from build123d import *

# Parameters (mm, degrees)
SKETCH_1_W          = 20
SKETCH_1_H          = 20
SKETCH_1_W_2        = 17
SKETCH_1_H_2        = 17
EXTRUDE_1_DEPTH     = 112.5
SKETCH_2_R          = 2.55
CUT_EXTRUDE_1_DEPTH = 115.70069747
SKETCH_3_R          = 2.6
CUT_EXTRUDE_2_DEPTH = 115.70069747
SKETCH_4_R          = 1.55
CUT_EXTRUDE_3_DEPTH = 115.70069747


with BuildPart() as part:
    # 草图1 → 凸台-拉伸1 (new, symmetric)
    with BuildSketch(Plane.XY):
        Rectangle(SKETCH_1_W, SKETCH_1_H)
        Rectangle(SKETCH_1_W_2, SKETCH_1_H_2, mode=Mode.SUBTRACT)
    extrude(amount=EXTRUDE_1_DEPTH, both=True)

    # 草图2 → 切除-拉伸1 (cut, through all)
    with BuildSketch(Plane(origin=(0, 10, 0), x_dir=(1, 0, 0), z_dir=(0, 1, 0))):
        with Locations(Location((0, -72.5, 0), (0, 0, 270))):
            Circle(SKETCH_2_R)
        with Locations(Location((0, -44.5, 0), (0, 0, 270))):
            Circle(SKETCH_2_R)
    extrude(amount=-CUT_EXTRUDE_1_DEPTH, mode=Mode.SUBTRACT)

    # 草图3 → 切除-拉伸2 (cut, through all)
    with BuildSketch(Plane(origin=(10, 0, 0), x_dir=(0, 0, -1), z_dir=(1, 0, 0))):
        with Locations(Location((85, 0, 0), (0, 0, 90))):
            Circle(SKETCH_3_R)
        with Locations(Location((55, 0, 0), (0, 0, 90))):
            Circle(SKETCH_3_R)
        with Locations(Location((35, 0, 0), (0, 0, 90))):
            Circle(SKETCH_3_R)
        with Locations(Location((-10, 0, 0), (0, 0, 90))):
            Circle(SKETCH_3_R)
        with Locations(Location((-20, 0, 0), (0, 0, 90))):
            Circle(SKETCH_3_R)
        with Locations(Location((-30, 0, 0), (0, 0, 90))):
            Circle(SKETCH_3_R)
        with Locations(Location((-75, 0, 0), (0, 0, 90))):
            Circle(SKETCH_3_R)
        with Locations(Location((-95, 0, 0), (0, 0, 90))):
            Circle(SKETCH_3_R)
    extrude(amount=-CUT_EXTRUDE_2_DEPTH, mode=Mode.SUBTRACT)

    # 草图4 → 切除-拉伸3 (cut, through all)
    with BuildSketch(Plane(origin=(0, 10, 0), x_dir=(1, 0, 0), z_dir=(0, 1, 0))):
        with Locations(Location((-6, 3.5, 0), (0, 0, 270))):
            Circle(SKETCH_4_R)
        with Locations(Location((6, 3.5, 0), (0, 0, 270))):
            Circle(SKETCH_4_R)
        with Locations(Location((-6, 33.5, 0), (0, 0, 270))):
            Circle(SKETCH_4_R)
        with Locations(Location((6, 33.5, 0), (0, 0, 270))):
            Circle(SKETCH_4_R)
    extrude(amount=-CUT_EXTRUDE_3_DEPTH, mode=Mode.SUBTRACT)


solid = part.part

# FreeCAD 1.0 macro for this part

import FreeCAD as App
import Part
import Sketcher
Q = App.Units.Quantity

doc = App.newDocument("Part")
body = doc.addObject("PartDesign::Body", "Body")

# Sketch on XY plane
sketch1 = body.newObject("Sketcher::SketchObject", "Sketch")
sketch1.AttachmentSupport = (doc.getObject("XY_Plane"), [""])
sketch1.MapMode = "FlatFace"
sketch1.addGeometry([
    Part.LineSegment(App.Vector(-10, 10, 0), App.Vector(-10, -10, 0)),  # 0
    Part.LineSegment(App.Vector(-10, -10, 0), App.Vector(10, -10, 0)),  # 1
    Part.LineSegment(App.Vector(10, -10, 0), App.Vector(10, 10, 0)),  # 2
    Part.LineSegment(App.Vector(10, 10, 0), App.Vector(-10, 10, 0)),  # 3
    Part.LineSegment(App.Vector(8.5, -8.5, 0), App.Vector(-8.5, -8.5, 0)),  # 4
    Part.LineSegment(App.Vector(-8.5, -8.5, 0), App.Vector(-8.5, 8.5, 0)),  # 5
    Part.LineSegment(App.Vector(-8.5, 8.5, 0), App.Vector(8.5, 8.5, 0)),  # 6
    Part.LineSegment(App.Vector(8.5, 8.5, 0), App.Vector(8.5, -8.5, 0)),  # 7
], False)
sketch1.addConstraint([
    Sketcher.Constraint("Coincident", 0, 2, 1, 1),
    Sketcher.Constraint("Coincident", 1, 2, 2, 1),
    Sketcher.Constraint("Coincident", 2, 2, 3, 1),
    Sketcher.Constraint("Coincident", 3, 2, 0, 1),
    Sketcher.Constraint("Coincident", 4, 2, 5, 1),
    Sketcher.Constraint("Coincident", 5, 2, 6, 1),
    Sketcher.Constraint("Coincident", 6, 2, 7, 1),
    Sketcher.Constraint("Coincident", 7, 2, 4, 1),
    Sketcher.Constraint("Vertical", 0),
    Sketcher.Constraint("Horizontal", 1),
    Sketcher.Constraint("Vertical", 2),
    Sketcher.Constraint("Horizontal", 3),
    Sketcher.Constraint("Horizontal", 4),
    Sketcher.Constraint("Vertical", 5),
    Sketcher.Constraint("Horizontal", 6),
    Sketcher.Constraint("Vertical", 7),
    Sketcher.Constraint("Symmetric", 0, 2, 2, 2, -1, 1),
    Sketcher.Constraint("Symmetric", 4, 2, 6, 2, -1, 1),
    Sketcher.Constraint("Equal", 3, 0),
    Sketcher.Constraint("Equal", 6, 5),
    Sketcher.Constraint("DistanceX", 1, 1, 1, 2, Q("20 mm")),
    Sketcher.Constraint("DistanceX", 4, 2, 4, 1, Q("17 mm")),
])
pad1 = body.newObject("PartDesign::Pad", "Pad")
pad1.Profile = sketch1
pad1.Length = 225
pad1.Midplane = True

# Sketch on XZ plane
sketch2 = body.newObject("Sketcher::SketchObject", "Sketch001")
sketch2.AttachmentSupport = (doc.getObject("XZ_Plane"), [""])
sketch2.MapMode = "FlatFace"
sketch2.AttachmentOffset = App.Placement(App.Vector(0, 0, -10), App.Rotation())
sketch2.addGeometry([
    Part.Circle(App.Vector(0, 72.5, 0), App.Vector(0, 0, 1), 2.55),
    Part.Circle(App.Vector(0, 44.5, 0), App.Vector(0, 0, 1), 2.55),
], False)
sketch2.addConstraint([
    Sketcher.Constraint("Equal", 0, 1),
    Sketcher.Constraint("PointOnObject", 0, 3, -2),
    Sketcher.Constraint("PointOnObject", 1, 3, -2),
    Sketcher.Constraint("Diameter", 0, Q("5.1 mm")),
    Sketcher.Constraint("DistanceY", 1, 3, 0, 3, Q("28 mm")),
    Sketcher.Constraint("DistanceY", -1, 1, 0, 3, Q("72.5 mm")),
])
pocket1 = body.newObject("PartDesign::Pocket", "Pocket")
pocket1.Profile = sketch2
pocket1.Type = "ThroughAll"
pocket1.Reversed = True

# Sketch on YZ plane
sketch3 = body.newObject("Sketcher::SketchObject", "Sketch002")
sketch3.AttachmentSupport = (doc.getObject("YZ_Plane"), [""])
sketch3.MapMode = "FlatFace"
sketch3.AttachmentOffset = App.Placement(App.Vector(0, 0, 10), App.Rotation())
sketch3.addGeometry([
    Part.Circle(App.Vector(0, -85, 0), App.Vector(0, 0, 1), 2.6),  # 0
    Part.Circle(App.Vector(0, -55, 0), App.Vector(0, 0, 1), 2.6),  # 1
    Part.Circle(App.Vector(0, -35, 0), App.Vector(0, 0, 1), 2.6),  # 2
    Part.Circle(App.Vector(0, 10, 0), App.Vector(0, 0, 1), 2.6),  # 3
    Part.Circle(App.Vector(0, 20, 0), App.Vector(0, 0, 1), 2.6),  # 4
    Part.Circle(App.Vector(0, 30, 0), App.Vector(0, 0, 1), 2.6),  # 5
    Part.Circle(App.Vector(0, 75, 0), App.Vector(0, 0, 1), 2.6),  # 6
    Part.Circle(App.Vector(0, 95, 0), App.Vector(0, 0, 1), 2.6),  # 7
], False)
sketch3.addConstraint([
    Sketcher.Constraint("Equal", 0, 1),
    Sketcher.Constraint("Equal", 1, 2),
    Sketcher.Constraint("Equal", 2, 3),
    Sketcher.Constraint("Equal", 3, 4),
    Sketcher.Constraint("Equal", 4, 5),
    Sketcher.Constraint("Equal", 5, 6),
    Sketcher.Constraint("Equal", 6, 7),
    Sketcher.Constraint("PointOnObject", 0, 3, -2),
    Sketcher.Constraint("PointOnObject", 1, 3, -2),
    Sketcher.Constraint("PointOnObject", 2, 3, -2),
    Sketcher.Constraint("PointOnObject", 3, 3, -2),
    Sketcher.Constraint("PointOnObject", 4, 3, -2),
    Sketcher.Constraint("PointOnObject", 5, 3, -2),
    Sketcher.Constraint("PointOnObject", 6, 3, -2),
    Sketcher.Constraint("PointOnObject", 7, 3, -2),
    Sketcher.Constraint("Diameter", 0, Q("5.2 mm")),
    Sketcher.Constraint("DistanceY", 0, 3, -1, 1, Q("85 mm")),
    Sketcher.Constraint("DistanceY", 1, 3, -1, 1, Q("55 mm")),
    Sketcher.Constraint("DistanceY", 2, 3, -1, 1, Q("35 mm")),
    Sketcher.Constraint("DistanceY", -1, 1, 3, 3, Q("10 mm")),
    Sketcher.Constraint("DistanceY", -1, 1, 4, 3, Q("20 mm")),
    Sketcher.Constraint("DistanceY", -1, 1, 5, 3, Q("30 mm")),
    Sketcher.Constraint("DistanceY", -1, 1, 6, 3, Q("75 mm")),
    Sketcher.Constraint("DistanceY", -1, 1, 7, 3, Q("95 mm")),
])
pocket2 = body.newObject("PartDesign::Pocket", "Pocket001")
pocket2.Profile = sketch3
pocket2.Type = "ThroughAll"

# Sketch on XZ plane
sketch4 = body.newObject("Sketcher::SketchObject", "Sketch003")
sketch4.AttachmentSupport = (doc.getObject("XZ_Plane"), [""])
sketch4.MapMode = "FlatFace"
sketch4.AttachmentOffset = App.Placement(App.Vector(0, 0, -10), App.Rotation())
sketch4.addGeometry([
    Part.Circle(App.Vector(-6, -3.5, 0), App.Vector(0, 0, 1), 1.55),
    Part.Circle(App.Vector(6, -3.5, 0), App.Vector(0, 0, 1), 1.55),
    Part.Circle(App.Vector(-6, -33.5, 0), App.Vector(0, 0, 1), 1.55),
    Part.Circle(App.Vector(6, -33.5, 0), App.Vector(0, 0, 1), 1.55),
], False)
sketch4.addConstraint([
    Sketcher.Constraint("Equal", 0, 1),
    Sketcher.Constraint("Equal", 1, 2),
    Sketcher.Constraint("Equal", 2, 3),
    Sketcher.Constraint("Symmetric", 0, 3, 1, 3, -2),
    Sketcher.Constraint("Symmetric", 2, 3, 3, 3, -2),
    Sketcher.Constraint("Vertical", 0, 3, 2, 3),
    Sketcher.Constraint("Diameter", 0, Q("3.1 mm")),
    Sketcher.Constraint("DistanceX", 0, 3, -1, 1, Q("6 mm")),
    Sketcher.Constraint("DistanceY", 2, 3, 0, 3, Q("30 mm")),
    Sketcher.Constraint("DistanceY", 0, 3, -1, 1, Q("3.5 mm")),
])
pocket3 = body.newObject("PartDesign::Pocket", "Pocket002")
pocket3.Profile = sketch4
pocket3.Type = "ThroughAll"
pocket3.Reversed = True

doc.recompute()
